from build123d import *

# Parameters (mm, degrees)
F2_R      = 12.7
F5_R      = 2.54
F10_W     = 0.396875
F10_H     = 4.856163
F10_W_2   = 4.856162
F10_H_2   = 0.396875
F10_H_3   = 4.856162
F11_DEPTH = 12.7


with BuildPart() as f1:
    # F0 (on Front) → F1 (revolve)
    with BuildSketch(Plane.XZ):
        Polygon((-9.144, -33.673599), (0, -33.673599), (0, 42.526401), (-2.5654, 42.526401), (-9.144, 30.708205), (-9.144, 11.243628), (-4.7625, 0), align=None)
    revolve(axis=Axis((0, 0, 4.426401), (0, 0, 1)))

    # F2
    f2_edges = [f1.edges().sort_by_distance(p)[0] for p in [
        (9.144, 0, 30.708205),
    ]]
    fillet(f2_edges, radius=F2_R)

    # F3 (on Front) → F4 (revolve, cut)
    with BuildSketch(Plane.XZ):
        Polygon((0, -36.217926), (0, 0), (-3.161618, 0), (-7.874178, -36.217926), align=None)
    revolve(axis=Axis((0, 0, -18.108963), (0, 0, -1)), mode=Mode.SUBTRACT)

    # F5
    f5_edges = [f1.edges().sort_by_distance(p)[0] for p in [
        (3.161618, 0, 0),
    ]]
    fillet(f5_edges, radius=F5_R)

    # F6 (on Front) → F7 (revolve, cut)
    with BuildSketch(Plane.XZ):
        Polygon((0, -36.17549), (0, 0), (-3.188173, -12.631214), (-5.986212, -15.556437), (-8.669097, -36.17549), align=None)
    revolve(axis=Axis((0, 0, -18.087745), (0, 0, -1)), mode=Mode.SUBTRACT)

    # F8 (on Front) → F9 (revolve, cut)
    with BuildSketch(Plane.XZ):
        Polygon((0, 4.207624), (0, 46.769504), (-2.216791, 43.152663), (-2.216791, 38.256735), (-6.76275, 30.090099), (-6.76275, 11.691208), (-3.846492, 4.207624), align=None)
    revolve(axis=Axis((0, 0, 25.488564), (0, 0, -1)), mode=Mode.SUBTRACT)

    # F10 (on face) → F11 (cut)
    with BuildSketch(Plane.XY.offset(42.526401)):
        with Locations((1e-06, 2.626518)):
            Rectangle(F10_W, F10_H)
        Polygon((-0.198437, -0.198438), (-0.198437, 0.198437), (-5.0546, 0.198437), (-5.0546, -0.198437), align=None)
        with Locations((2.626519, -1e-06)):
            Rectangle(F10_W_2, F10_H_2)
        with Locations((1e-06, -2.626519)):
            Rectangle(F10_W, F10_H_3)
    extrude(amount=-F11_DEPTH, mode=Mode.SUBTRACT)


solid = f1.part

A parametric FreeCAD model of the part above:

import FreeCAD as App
import Part
import Sketcher

V = App.Vector
Q = App.Units.Quantity


def edges_at(feature, points):
    """Names of the edges that pass closest to the given points."""
    edges = feature.Shape.Edges
    near = lambda p: min(range(len(edges)), key=lambda i: edges[i].distToShape(Part.Vertex(*p))[0])
    return sorted({f"Edge{near(p) + 1}" for p in points})

doc = App.newDocument("Part")
body = doc.addObject("PartDesign::Body", "Body")

sketch1 = body.newObject("Sketcher::SketchObject", "Sketch")
sketch1.AttachmentSupport = (doc.getObject("XZ_Plane"), [""])
sketch1.MapMode = "FlatFace"
sketch1.addGeometry([
    Part.LineSegment(V(-9.144, -33.673599, 0), V(0, -33.673599, 0)),
    Part.LineSegment(V(0, -33.673599, 0), V(0, 42.526401, 0)),
    Part.LineSegment(V(0, 42.526401, 0), V(-2.5654, 42.526401, 0)),
    Part.LineSegment(V(-2.5654, 42.526401, 0), V(-9.144, 30.708205, 0)),
    Part.LineSegment(V(-9.144, 30.708205, 0), V(-9.144, 11.243628, 0)),
    Part.LineSegment(V(-9.144, 11.243628, 0), V(-4.7625, 0, 0)),
    Part.LineSegment(V(-4.7625, 0, 0), V(-9.144, -33.673599, 0)),
], False)
sketch1.addConstraint([
    Sketcher.Constraint("Coincident", 0, 2, 1, 1),
    Sketcher.Constraint("Coincident", 1, 2, 2, 1),
    Sketcher.Constraint("Coincident", 2, 2, 3, 1),
    Sketcher.Constraint("Coincident", 3, 2, 4, 1),
    Sketcher.Constraint("Coincident", 4, 2, 5, 1),
    Sketcher.Constraint("Coincident", 5, 2, 6, 1),
    Sketcher.Constraint("Coincident", 6, 2, 0, 1),
    Sketcher.Constraint("Horizontal", 0),
    Sketcher.Constraint("Vertical", 1),
    Sketcher.Constraint("Horizontal", 2),
    Sketcher.Constraint("Vertical", 4),
    Sketcher.Constraint("PointOnObject", 0, 2, -2),
    Sketcher.Constraint("PointOnObject", 5, 2, -1),
    Sketcher.Constraint("Vertical", 4, 2, 6, 2),
    Sketcher.Constraint("DistanceY", 1, 1, 1, 2, Q("3 in")),
    Sketcher.Constraint("DistanceX", 0, 1, 0, 2, Q("0.36 in")),
    Sketcher.Constraint("DistanceX", 2, 2, 2, 1, Q("0.101 in")),
    Sketcher.Constraint("DistanceX", 5, 2, -1, 1, Q("0.1875 in")),
    Sketcher.Constraint("DistanceY", 0, 2, -1, 1, Q("33.673599 mm")),
    Sketcher.Constraint("DistanceY", 4, 2, 4, 1, Q("19.464577 mm")),
    Sketcher.Constraint("Distance", 3, Q("13.525817 mm")),
])
revolution = body.newObject("PartDesign::Revolution", "Revolution")
revolution.Profile = sketch1
revolution.ReferenceAxis = (sketch1, ["V_Axis"])
revolution.Angle = 360
doc.recompute()

fillet = body.newObject("PartDesign::Fillet", "Fillet")
fillet.Base = (revolution, edges_at(revolution, [(9.144, 0, 30.708)]))
fillet.Radius = Q("0.5 in")

sketch2 = body.newObject("Sketcher::SketchObject", "Sketch001")
sketch2.AttachmentSupport = (doc.getObject("XZ_Plane"), [""])
sketch2.MapMode = "FlatFace"
sketch2.addGeometry([
    Part.LineSegment(V(0, -36.217926, 0), V(0, 0, 0)),
    Part.LineSegment(V(0, 0, 0), V(-3.161618, 0, 0)),
    Part.LineSegment(V(-3.161618, 0, 0), V(-7.874178, -36.217926, 0)),
    Part.LineSegment(V(-7.874178, -36.217926, 0), V(0, -36.217926, 0)),
], False)
sketch2.addConstraint([
    Sketcher.Constraint("Coincident", 0, 2, 1, 1),
    Sketcher.Constraint("Coincident", 1, 2, 2, 1),
    Sketcher.Constraint("Coincident", 2, 2, 3, 1),
    Sketcher.Constraint("Coincident", 3, 2, 0, 1),
    Sketcher.Constraint("Vertical", 0),
    Sketcher.Constraint("Horizontal", 1),
    Sketcher.Constraint("Horizontal", 3),
    Sketcher.Constraint("Coincident", 0, 2, -1, 1),
    Sketcher.Constraint("Distance", 2, Q("36.523231 mm")),
    Sketcher.Constraint("DistanceX", 1, 2, 1, 1, Q("3.161618 mm")),
    Sketcher.Constraint("DistanceX", 3, 1, 3, 2, Q("7.874178 mm")),
])
groove = body.newObject("PartDesign::Groove", "Groove")
groove.Profile = sketch2
groove.ReferenceAxis = (sketch2, ["V_Axis"])
groove.Angle = 360
doc.recompute()

fillet2 = body.newObject("PartDesign::Fillet", "Fillet001")
fillet2.Base = (groove, edges_at(groove, [(3.162, 0, 0)]))
fillet2.Radius = Q("0.1 in")

sketch3 = body.newObject("Sketcher::SketchObject", "Sketch002")
sketch3.AttachmentSupport = (doc.getObject("XZ_Plane"), [""])
sketch3.MapMode = "FlatFace"
sketch3.addGeometry([
    Part.LineSegment(V(0, -36.17549, 0), V(0, 0, 0)),
    Part.LineSegment(V(0, 0, 0), V(-3.188173, -12.631214, 0)),
    Part.LineSegment(V(-3.188173, -12.631214, 0), V(-5.986212, -15.556437, 0)),
    Part.LineSegment(V(-5.986212, -15.556437, 0), V(-8.669097, -36.17549, 0)),
    Part.LineSegment(V(-8.669097, -36.17549, 0), V(0, -36.17549, 0)),
], False)
sketch3.addConstraint([
    Sketcher.Constraint("Coincident", 0, 2, 1, 1),
    Sketcher.Constraint("Coincident", 1, 2, 2, 1),
    Sketcher.Constraint("Coincident", 2, 2, 3, 1),
    Sketcher.Constraint("Coincident", 3, 2, 4, 1),
    Sketcher.Constraint("Coincident", 4, 2, 0, 1),
    Sketcher.Constraint("Vertical", 0),
    Sketcher.Constraint("Horizontal", 4),
    Sketcher.Constraint("Coincident", 0, 2, -1, 1),
    Sketcher.Constraint("DistanceY", 0, 1, 0, 2, Q("36.17549 mm")),
    Sketcher.Constraint("DistanceX", 4, 1, 4, 2, Q("8.669097 mm")),
    Sketcher.Constraint("DistanceX", 2, 2, 1, 2, Q("2.798039 mm")),
    Sketcher.Constraint("Distance", 1, Q("13.027356 mm")),
    Sketcher.Constraint("Distance", 2, Q("4.047957 mm")),
    Sketcher.Constraint("Distance", 3, Q("20.792865 mm")),
])
groove2 = body.newObject("PartDesign::Groove", "Groove001")
groove2.Profile = sketch3
groove2.ReferenceAxis = (sketch3, ["V_Axis"])
groove2.Angle = 360

sketch4 = body.newObject("Sketcher::SketchObject", "Sketch003")
sketch4.AttachmentSupport = (doc.getObject("XZ_Plane"), [""])
sketch4.MapMode = "FlatFace"
sketch4.addGeometry([
    Part.LineSegment(V(0, 4.207624, 0), V(0, 46.769504, 0)),
    Part.LineSegment(V(0, 46.769504, 0), V(-2.216791, 43.152663, 0)),
    Part.LineSegment(V(-2.216791, 43.152663, 0), V(-2.216791, 38.256735, 0)),
    Part.LineSegment(V(-2.216791, 38.256735, 0), V(-6.76275, 30.090099, 0)),
    Part.LineSegment(V(-6.76275, 30.090099, 0), V(-6.76275, 11.691208, 0)),
    Part.LineSegment(V(-6.76275, 11.691208, 0), V(-3.846492, 4.207624, 0)),
    Part.LineSegment(V(-3.846492, 4.207624, 0), V(0, 4.207624, 0)),
], False)
sketch4.addConstraint([
    Sketcher.Constraint("Coincident", 0, 2, 1, 1),
    Sketcher.Constraint("Coincident", 1, 2, 2, 1),
    Sketcher.Constraint("Coincident", 2, 2, 3, 1),
    Sketcher.Constraint("Coincident", 3, 2, 4, 1),
    Sketcher.Constraint("Coincident", 4, 2, 5, 1),
    Sketcher.Constraint("Coincident", 5, 2, 6, 1),
    Sketcher.Constraint("Coincident", 6, 2, 0, 1),
    Sketcher.Constraint("Vertical", 0),
    Sketcher.Constraint("Vertical", 2),
    Sketcher.Constraint("Vertical", 4),
    Sketcher.Constraint("Horizontal", 6),
    Sketcher.Constraint("PointOnObject", 0, 2, -2),
    Sketcher.Constraint("DistanceX", 6, 1, 6, 2, Q("3.846492 mm")),
    Sketcher.Constraint("DistanceY", 0, 1, 0, 2, Q("42.56188 mm")),
    Sketcher.Constraint("DistanceY", 4, 2, 4, 1, Q("18.398891 mm")),
    Sketcher.Constraint("DistanceY", -1, 1, 3, 2, Q("30.090099 mm")),
    Sketcher.Constraint("DistanceX", 5, 2, 2, 2, Q("1.629701 mm")),
    Sketcher.Constraint("Distance", 3, Q("9.34664 mm")),
    Sketcher.Constraint("DistanceY", 2, 2, 2, 1, Q("4.895928 mm")),
    Sketcher.Constraint("DistanceX", 3, 2, -1, 1, Q("6.76275 mm")),
    Sketcher.Constraint("DistanceY", 1, 2, 0, 2, Q("3.616841 mm")),
])
groove3 = body.newObject("PartDesign::Groove", "Groove002")
groove3.Profile = sketch4
groove3.ReferenceAxis = (sketch4, ["V_Axis"])
groove3.Angle = 360

sketch5 = body.newObject("Sketcher::SketchObject", "Sketch004")
sketch5.AttachmentSupport = (doc.getObject("XY_Plane"), [""])
sketch5.MapMode = "FlatFace"
sketch5.AttachmentOffset = App.Placement(V(0, 0, 42.526401), App.Rotation())
sketch5.addGeometry([
    Part.LineSegment(V(-0.198436, 5.0546, 0), V(-0.198436, 0.198436, 0)),
    Part.LineSegment(V(-0.198436, 0.198436, 0), V(0.198438, 0.198436, 0)),
    Part.LineSegment(V(0.198438, 0.198436, 0), V(0.198438, -0.198438, 0)),
    Part.LineSegment(V(0.198438, -0.198438, 0), V(-0.198436, -0.198438, 0)),
    Part.LineSegment(V(-0.198436, -0.198438, 0), V(-0.198436, -5.0546, 0)),
    Part.LineSegment(V(-0.198436, -5.0546, 0), V(0.198438, -5.0546, 0)),
    Part.LineSegment(V(0.198438, -5.0546, 0), V(0.198438, -0.198438, 0)),
    Part.LineSegment(V(0.198438, -0.198438, 0), V(5.0546, -0.198438, 0)),
    Part.LineSegment(V(5.0546, -0.198438, 0), V(5.0546, 0.198436, 0)),
    Part.LineSegment(V(5.0546, 0.198436, 0), V(0.198438, 0.198436, 0)),
    Part.LineSegment(V(0.198438, 0.198436, 0), V(0.198438, 5.0546, 0)),
    Part.LineSegment(V(0.198438, 5.0546, 0), V(-0.198436, 5.0546, 0)),
    Part.LineSegment(V(-0.198437, -0.198438, 0), V(-0.198437, 0.198437, 0)),
    Part.LineSegment(V(-0.198437, 0.198437, 0), V(-5.0546, 0.198437, 0)),
    Part.LineSegment(V(-5.0546, 0.198437, 0), V(-5.0546, -0.198437, 0)),
    Part.LineSegment(V(-5.0546, -0.198437, 0), V(-0.198437, -0.198438, 0)),
], False)
sketch5.addConstraint([
    Sketcher.Constraint("Coincident", 0, 2, 1, 1),
    Sketcher.Constraint("Coincident", 1, 2, 2, 1),
    Sketcher.Constraint("Coincident", 2, 2, 3, 1),
    Sketcher.Constraint("Coincident", 3, 2, 4, 1),
    Sketcher.Constraint("Coincident", 4, 2, 5, 1),
    Sketcher.Constraint("Coincident", 5, 2, 6, 1),
    Sketcher.Constraint("Coincident", 6, 2, 7, 1),
    Sketcher.Constraint("Coincident", 7, 2, 8, 1),
    Sketcher.Constraint("Coincident", 8, 2, 9, 1),
    Sketcher.Constraint("Coincident", 9, 2, 10, 1),
    Sketcher.Constraint("Coincident", 10, 2, 11, 1),
    Sketcher.Constraint("Coincident", 11, 2, 0, 1),
    Sketcher.Constraint("Coincident", 12, 2, 13, 1),
    Sketcher.Constraint("Coincident", 13, 2, 14, 1),
    Sketcher.Constraint("Coincident", 14, 2, 15, 1),
    Sketcher.Constraint("Coincident", 15, 2, 12, 1),
    Sketcher.Constraint("Vertical", 0),
    Sketcher.Constraint("Horizontal", 1),
    Sketcher.Constraint("Vertical", 2),
    Sketcher.Constraint("Horizontal", 3),
    Sketcher.Constraint("Vertical", 4),
    Sketcher.Constraint("Horizontal", 5),
    Sketcher.Constraint("Vertical", 6),
    Sketcher.Constraint("Horizontal", 7),
    Sketcher.Constraint("Vertical", 8),
    Sketcher.Constraint("Horizontal", 9),
    Sketcher.Constraint("Vertical", 10),
    Sketcher.Constraint("Horizontal", 11),
    Sketcher.Constraint("Vertical", 12),
    Sketcher.Constraint("Horizontal", 13),
    Sketcher.Constraint("Vertical", 14),
    Sketcher.Constraint("Horizontal", 15),
    Sketcher.Constraint("Coincident", 6, 2, 2, 2),
    Sketcher.Constraint("Coincident", 9, 2, 1, 2),
    Sketcher.Constraint("Coincident", 12, 2, 0, 2),
    Sketcher.Constraint("Coincident", 15, 2, 3, 2),
    Sketcher.Constraint("Symmetric", 0, 2, 2, 2, -1, 1),
    Sketcher.Constraint("Equal", 9, 13),
    Sketcher.Constraint("Equal", 15, 0),
    Sketcher.Constraint("Equal", 11, 2),
    Sketcher.Constraint("Equal", 0, 4),
    Sketcher.Constraint("DistanceX", 1, 1, 1, 2, Q("0.015625 in")),
    Sketcher.Constraint("DistanceY", 4, 2, -1, 1, Q("0.199 in")),
])
pocket1 = body.newObject("PartDesign::Pocket", "Pocket")
pocket1.Profile = sketch5
pocket1.Length = Q("0.5 in")

doc.recompute()
